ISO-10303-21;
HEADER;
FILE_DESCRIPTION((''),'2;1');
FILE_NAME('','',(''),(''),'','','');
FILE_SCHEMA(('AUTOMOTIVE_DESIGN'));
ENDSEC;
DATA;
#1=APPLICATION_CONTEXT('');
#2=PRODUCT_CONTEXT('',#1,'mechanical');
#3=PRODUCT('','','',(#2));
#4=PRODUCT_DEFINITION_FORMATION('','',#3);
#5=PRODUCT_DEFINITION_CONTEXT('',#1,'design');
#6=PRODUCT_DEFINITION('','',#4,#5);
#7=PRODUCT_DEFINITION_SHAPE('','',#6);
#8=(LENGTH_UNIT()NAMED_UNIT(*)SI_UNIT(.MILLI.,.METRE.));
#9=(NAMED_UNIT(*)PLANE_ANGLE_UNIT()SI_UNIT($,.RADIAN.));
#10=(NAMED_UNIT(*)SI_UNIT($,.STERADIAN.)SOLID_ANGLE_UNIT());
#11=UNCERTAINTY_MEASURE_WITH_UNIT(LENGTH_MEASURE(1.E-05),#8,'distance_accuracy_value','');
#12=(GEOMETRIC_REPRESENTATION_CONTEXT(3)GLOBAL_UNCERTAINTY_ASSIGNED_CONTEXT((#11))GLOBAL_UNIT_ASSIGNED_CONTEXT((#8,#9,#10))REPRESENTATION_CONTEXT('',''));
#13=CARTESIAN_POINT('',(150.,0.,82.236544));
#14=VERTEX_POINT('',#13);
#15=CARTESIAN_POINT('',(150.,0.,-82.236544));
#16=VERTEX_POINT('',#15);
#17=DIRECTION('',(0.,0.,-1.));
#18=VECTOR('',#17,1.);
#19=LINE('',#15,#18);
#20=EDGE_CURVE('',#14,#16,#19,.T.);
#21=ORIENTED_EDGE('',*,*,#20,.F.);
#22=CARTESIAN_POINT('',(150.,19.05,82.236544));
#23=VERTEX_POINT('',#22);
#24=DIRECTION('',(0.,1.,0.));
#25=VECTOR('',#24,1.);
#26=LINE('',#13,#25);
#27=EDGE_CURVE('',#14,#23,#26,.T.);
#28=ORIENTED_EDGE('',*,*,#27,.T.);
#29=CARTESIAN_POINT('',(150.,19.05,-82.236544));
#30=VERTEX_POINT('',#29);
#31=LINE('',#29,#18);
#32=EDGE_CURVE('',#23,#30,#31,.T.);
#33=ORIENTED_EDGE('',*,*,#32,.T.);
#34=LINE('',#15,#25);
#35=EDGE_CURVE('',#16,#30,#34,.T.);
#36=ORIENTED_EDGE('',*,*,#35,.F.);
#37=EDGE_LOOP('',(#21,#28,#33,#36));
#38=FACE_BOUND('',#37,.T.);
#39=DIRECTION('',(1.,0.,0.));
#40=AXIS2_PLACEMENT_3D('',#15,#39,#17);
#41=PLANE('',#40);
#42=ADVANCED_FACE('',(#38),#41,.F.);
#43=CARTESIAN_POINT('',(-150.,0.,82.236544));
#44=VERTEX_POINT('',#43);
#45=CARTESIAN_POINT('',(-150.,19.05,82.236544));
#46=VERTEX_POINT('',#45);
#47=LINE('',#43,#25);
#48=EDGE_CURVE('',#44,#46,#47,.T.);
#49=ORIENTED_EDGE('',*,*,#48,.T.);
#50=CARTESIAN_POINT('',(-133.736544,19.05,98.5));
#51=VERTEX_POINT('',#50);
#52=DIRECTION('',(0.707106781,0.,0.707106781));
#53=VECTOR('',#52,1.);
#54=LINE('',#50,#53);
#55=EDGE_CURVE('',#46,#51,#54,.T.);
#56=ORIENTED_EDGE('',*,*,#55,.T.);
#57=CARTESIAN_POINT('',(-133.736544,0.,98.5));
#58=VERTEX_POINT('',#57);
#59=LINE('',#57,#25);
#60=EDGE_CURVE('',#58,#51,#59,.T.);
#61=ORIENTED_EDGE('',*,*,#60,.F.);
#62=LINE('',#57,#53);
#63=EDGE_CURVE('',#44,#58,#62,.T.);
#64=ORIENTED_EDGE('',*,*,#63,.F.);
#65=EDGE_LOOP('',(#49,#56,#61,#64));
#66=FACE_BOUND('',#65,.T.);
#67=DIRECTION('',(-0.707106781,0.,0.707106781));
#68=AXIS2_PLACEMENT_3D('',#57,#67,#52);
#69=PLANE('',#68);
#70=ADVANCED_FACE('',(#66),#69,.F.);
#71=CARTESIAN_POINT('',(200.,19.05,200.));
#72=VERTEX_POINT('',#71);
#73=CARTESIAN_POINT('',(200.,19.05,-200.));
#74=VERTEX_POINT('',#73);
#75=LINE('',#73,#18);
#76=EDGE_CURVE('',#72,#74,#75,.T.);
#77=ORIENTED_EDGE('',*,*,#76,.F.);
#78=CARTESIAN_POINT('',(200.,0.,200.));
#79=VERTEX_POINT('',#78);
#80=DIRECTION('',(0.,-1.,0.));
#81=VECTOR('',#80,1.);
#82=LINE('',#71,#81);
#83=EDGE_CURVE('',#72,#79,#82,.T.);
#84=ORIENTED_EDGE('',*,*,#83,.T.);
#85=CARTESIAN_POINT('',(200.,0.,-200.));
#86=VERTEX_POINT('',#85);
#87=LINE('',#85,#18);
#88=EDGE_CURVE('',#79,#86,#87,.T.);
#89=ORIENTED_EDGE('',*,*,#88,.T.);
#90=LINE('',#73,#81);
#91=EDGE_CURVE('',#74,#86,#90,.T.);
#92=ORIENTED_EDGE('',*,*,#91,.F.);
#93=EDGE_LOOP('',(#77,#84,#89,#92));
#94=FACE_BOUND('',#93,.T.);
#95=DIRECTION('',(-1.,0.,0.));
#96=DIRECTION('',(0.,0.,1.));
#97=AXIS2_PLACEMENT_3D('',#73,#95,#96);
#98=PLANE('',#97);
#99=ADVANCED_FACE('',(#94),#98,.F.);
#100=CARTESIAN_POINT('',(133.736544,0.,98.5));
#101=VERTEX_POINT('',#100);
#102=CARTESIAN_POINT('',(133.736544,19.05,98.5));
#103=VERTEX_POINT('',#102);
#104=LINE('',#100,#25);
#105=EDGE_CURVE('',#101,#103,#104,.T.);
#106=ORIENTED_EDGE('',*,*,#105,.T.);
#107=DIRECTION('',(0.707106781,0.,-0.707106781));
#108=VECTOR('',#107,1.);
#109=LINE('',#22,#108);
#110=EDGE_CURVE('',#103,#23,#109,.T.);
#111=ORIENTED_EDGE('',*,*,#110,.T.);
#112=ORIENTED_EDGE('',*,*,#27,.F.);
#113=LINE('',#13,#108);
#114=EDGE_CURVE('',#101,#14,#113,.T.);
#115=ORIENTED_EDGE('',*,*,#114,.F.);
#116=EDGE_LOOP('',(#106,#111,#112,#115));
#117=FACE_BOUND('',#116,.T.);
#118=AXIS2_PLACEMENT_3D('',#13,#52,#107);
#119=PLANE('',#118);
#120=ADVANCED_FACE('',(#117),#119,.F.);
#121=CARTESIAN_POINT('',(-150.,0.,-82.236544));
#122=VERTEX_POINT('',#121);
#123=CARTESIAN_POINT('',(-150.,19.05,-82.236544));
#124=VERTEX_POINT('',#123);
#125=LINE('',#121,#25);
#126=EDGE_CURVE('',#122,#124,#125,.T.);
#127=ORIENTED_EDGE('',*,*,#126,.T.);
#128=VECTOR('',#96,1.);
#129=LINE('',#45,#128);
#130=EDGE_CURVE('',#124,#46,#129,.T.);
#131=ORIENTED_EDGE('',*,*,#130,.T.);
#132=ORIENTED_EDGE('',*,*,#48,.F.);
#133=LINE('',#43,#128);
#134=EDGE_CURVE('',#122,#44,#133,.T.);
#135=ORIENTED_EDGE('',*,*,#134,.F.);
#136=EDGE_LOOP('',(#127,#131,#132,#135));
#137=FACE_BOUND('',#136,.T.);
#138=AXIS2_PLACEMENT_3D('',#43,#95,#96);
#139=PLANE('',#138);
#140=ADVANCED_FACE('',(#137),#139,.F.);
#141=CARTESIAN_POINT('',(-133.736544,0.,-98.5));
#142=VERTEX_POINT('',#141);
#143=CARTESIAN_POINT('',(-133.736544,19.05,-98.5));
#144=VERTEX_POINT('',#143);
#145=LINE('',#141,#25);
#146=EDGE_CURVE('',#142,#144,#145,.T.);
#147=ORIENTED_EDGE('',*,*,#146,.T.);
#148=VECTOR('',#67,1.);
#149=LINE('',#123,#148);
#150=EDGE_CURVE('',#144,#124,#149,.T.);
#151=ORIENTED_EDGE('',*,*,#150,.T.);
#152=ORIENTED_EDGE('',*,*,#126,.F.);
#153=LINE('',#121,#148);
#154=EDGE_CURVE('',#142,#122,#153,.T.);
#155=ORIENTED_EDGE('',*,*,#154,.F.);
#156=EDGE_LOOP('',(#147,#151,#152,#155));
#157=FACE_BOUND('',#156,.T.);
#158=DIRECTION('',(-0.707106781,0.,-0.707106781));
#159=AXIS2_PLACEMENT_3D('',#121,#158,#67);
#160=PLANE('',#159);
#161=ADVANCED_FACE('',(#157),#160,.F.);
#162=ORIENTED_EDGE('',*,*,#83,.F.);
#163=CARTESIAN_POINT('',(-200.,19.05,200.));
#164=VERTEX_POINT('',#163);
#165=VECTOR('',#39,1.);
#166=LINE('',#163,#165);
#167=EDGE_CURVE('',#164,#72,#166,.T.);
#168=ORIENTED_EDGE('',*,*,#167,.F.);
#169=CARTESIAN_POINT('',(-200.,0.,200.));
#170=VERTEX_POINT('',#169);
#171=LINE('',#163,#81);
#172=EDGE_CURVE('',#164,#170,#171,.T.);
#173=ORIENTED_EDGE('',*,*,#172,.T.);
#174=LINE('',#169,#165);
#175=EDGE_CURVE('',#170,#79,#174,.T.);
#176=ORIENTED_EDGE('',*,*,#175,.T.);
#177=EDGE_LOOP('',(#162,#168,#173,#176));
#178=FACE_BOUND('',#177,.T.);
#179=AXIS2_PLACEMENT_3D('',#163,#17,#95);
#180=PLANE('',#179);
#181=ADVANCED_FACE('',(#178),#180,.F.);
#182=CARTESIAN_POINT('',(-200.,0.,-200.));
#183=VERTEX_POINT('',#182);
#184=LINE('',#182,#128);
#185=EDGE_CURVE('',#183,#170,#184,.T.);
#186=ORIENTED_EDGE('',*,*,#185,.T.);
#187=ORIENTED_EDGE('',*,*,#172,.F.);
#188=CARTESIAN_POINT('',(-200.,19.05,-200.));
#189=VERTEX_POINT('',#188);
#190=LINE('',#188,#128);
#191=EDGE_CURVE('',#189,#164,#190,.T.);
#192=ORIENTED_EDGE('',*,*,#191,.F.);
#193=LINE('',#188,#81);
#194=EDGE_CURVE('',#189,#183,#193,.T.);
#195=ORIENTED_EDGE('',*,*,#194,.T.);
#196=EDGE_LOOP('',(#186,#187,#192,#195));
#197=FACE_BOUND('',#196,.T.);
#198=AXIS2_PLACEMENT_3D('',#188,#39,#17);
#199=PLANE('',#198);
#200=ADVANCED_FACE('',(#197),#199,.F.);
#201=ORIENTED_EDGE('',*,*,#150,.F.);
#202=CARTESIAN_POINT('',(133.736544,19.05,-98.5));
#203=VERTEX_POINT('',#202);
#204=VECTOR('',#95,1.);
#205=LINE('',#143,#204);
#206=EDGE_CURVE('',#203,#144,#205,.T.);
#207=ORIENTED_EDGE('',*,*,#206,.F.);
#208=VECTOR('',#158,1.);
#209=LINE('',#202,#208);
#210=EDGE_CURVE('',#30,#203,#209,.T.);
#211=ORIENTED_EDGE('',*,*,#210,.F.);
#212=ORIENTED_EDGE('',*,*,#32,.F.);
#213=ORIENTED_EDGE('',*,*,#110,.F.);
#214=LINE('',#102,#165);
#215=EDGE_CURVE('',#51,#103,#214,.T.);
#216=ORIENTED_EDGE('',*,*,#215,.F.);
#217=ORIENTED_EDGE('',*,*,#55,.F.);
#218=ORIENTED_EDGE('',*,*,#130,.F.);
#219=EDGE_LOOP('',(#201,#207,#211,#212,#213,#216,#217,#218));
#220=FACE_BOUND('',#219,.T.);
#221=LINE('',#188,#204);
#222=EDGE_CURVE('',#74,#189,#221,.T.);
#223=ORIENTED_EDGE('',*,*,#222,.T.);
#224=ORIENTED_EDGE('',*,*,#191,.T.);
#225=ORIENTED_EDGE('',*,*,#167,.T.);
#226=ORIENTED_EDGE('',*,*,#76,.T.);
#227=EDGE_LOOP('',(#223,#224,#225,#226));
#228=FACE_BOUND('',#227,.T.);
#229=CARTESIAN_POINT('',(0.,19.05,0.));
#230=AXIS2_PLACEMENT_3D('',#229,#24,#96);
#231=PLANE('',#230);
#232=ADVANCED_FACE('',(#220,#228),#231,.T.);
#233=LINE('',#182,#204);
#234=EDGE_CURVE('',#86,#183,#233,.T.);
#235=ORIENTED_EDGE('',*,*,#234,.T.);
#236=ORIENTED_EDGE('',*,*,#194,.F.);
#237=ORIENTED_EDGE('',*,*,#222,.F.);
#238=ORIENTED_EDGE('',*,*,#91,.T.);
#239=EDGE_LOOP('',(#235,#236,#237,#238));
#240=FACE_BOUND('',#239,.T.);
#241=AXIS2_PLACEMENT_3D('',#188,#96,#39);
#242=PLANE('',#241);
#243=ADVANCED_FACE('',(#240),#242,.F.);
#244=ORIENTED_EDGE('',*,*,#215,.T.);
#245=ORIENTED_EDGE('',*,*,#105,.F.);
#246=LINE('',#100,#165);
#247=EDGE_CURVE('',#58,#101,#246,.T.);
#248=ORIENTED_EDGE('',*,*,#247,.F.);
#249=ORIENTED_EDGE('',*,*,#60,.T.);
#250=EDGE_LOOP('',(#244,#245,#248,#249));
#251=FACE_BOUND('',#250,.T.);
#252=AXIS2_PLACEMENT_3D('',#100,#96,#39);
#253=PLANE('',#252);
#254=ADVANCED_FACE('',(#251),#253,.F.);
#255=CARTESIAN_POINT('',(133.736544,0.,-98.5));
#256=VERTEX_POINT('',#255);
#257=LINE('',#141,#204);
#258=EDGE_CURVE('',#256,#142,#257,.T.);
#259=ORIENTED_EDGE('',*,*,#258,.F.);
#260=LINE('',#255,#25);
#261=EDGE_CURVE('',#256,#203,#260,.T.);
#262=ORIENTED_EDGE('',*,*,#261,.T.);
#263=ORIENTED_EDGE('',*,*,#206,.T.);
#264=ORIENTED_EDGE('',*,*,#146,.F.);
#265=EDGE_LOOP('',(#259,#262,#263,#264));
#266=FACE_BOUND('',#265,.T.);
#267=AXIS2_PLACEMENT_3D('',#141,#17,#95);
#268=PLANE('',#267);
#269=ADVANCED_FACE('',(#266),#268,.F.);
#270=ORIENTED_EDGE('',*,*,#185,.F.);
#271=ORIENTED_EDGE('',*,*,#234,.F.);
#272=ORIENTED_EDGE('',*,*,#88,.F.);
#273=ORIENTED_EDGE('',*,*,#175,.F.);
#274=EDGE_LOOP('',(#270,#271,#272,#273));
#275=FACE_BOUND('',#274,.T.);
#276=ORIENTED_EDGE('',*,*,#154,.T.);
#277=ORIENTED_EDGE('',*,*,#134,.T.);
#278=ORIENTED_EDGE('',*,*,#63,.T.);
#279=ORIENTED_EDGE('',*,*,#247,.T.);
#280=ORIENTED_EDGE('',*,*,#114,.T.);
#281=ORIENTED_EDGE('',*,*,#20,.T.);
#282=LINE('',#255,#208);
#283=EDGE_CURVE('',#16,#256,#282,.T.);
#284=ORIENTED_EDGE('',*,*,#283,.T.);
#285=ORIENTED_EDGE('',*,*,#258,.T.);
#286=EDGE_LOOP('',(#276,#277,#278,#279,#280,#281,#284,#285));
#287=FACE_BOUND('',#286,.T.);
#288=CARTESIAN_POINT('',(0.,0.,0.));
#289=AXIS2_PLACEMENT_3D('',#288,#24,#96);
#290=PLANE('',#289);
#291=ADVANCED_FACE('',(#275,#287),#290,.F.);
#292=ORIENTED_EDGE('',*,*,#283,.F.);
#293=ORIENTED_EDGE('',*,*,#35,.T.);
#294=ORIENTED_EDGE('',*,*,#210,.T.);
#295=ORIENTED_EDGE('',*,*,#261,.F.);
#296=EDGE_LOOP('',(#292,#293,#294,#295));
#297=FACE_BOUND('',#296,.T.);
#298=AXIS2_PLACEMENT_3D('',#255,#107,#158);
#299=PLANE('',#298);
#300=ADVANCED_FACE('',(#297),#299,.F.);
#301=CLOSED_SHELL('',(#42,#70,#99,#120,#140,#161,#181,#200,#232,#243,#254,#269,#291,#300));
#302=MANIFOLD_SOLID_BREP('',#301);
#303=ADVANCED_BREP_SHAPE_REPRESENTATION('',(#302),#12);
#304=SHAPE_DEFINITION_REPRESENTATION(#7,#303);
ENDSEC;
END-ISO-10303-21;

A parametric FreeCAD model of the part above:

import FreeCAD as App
import Part
import Sketcher
Q = App.Units.Quantity

doc = App.newDocument("Part")
body = doc.addObject("PartDesign::Body", "Body")

sketch1 = doc.addObject("Sketcher::SketchObject", "Sketch")
body.addObject(sketch1)
sketch1.AttachmentSupport = (doc.XZ_Plane, [""])
sketch1.MapMode = "FlatFace"
sketch1.addGeometry(Part.LineSegment(App.Vector(-200, -200, 0), App.Vector(-200, 200, 0)), False)
sketch1.addGeometry(Part.LineSegment(App.Vector(-200, 200, 0), App.Vector(200, 200, 0)), False)
sketch1.addGeometry(Part.LineSegment(App.Vector(200, 200, 0), App.Vector(200, -200, 0)), False)
sketch1.addGeometry(Part.LineSegment(App.Vector(200, -200, 0), App.Vector(-200, -200, 0)), False)
sketch1.addConstraint(Sketcher.Constraint("Coincident", 0, 2, 1, 1))
sketch1.addConstraint(Sketcher.Constraint("Coincident", 1, 2, 2, 1))
sketch1.addConstraint(Sketcher.Constraint("Coincident", 2, 2, 3, 1))
sketch1.addConstraint(Sketcher.Constraint("Coincident", 3, 2, 0, 1))
sketch1.addConstraint(Sketcher.Constraint("Vertical", 0))
sketch1.addConstraint(Sketcher.Constraint("Horizontal", 1))
sketch1.addConstraint(Sketcher.Constraint("Vertical", 2))
sketch1.addConstraint(Sketcher.Constraint("Horizontal", 3))
sketch1.addConstraint(Sketcher.Constraint("Symmetric", 0, 2, 2, 2, -1, 1))
sketch1.addConstraint(Sketcher.Constraint("Equal", 3, 0))
sketch1.addConstraint(Sketcher.Constraint("DistanceX", 1, 1, 1, 2, Q("400 mm")))
pad1 = doc.addObject("PartDesign::Pad", "Pad")
body.addObject(pad1)
pad1.Profile = sketch1
pad1.Length = 19.05
pad1.Reversed = True

sketch2 = doc.addObject("Sketcher::SketchObject", "Sketch001")
body.addObject(sketch2)
sketch2.AttachmentSupport = (doc.XZ_Plane, [""])
sketch2.MapMode = "FlatFace"
sketch2.AttachmentOffset = App.Placement(App.Vector(0, 0, -19.05), App.Rotation())
sketch2.addGeometry(Part.LineSegment(App.Vector(-150, -82, 0), App.Vector(-150, 82, 0)), False)
sketch2.addGeometry(Part.LineSegment(App.Vector(-150, 82, 0), App.Vector(-134, 98, 0)), False)
sketch2.addGeometry(Part.LineSegment(App.Vector(-134, 98, 0), App.Vector(134, 98, 0)), False)
sketch2.addGeometry(Part.LineSegment(App.Vector(134, 98, 0), App.Vector(150, 82, 0)), False)
sketch2.addGeometry(Part.LineSegment(App.Vector(150, 82, 0), App.Vector(150, -82, 0)), False)
sketch2.addGeometry(Part.LineSegment(App.Vector(150, -82, 0), App.Vector(134, -98, 0)), False)
sketch2.addGeometry(Part.LineSegment(App.Vector(134, -98, 0), App.Vector(-134, -98, 0)), False)
sketch2.addGeometry(Part.LineSegment(App.Vector(-134, -98, 0), App.Vector(-150, -82, 0)), False)
sketch2.addConstraint(Sketcher.Constraint("Coincident", 0, 2, 1, 1))
sketch2.addConstraint(Sketcher.Constraint("Coincident", 1, 2, 2, 1))
sketch2.addConstraint(Sketcher.Constraint("Coincident", 2, 2, 3, 1))
sketch2.addConstraint(Sketcher.Constraint("Coincident", 3, 2, 4, 1))
sketch2.addConstraint(Sketcher.Constraint("Coincident", 4, 2, 5, 1))
sketch2.addConstraint(Sketcher.Constraint("Coincident", 5, 2, 6, 1))
sketch2.addConstraint(Sketcher.Constraint("Coincident", 6, 2, 7, 1))
sketch2.addConstraint(Sketcher.Constraint("Coincident", 7, 2, 0, 1))
sketch2.addConstraint(Sketcher.Constraint("Vertical", 0))
sketch2.addConstraint(Sketcher.Constraint("Horizontal", 2))
sketch2.addConstraint(Sketcher.Constraint("Vertical", 4))
sketch2.addConstraint(Sketcher.Constraint("Horizontal", 6))
sketch2.addConstraint(Sketcher.Constraint("Symmetric", 0, 2, 4, 2, -1, 1))
sketch2.addConstraint(Sketcher.Constraint("Symmetric", 1, 2, 5, 2, -1, 1))
sketch2.addConstraint(Sketcher.Constraint("Perpendicular", 1, 3))
sketch2.addConstraint(Sketcher.Constraint("Perpendicular", 5, 7))
sketch2.addConstraint(Sketcher.Constraint("Horizontal", 0, 2, 3, 2))
sketch2.addConstraint(Sketcher.Constraint("Horizontal", 4, 2, 7, 2))
sketch2.addConstraint(Sketcher.Constraint("Vertical", 2, 2, 5, 2))
sketch2.addConstraint(Sketcher.Constraint("Distance", 1, Q("23 mm")))
sketch2.addConstraint(Sketcher.Constraint("DistanceX", 0, 2, -1, 1, Q("150 mm")))
sketch2.addConstraint(Sketcher.Constraint("DistanceY", 5, 2, 2, 2, Q("197 mm")))
pocket1 = doc.addObject("PartDesign::Pocket", "Pocket")
body.addObject(pocket1)
pocket1.Profile = sketch2
pocket1.Type = "ThroughAll"
pocket1.Reversed = True

doc.recompute()
